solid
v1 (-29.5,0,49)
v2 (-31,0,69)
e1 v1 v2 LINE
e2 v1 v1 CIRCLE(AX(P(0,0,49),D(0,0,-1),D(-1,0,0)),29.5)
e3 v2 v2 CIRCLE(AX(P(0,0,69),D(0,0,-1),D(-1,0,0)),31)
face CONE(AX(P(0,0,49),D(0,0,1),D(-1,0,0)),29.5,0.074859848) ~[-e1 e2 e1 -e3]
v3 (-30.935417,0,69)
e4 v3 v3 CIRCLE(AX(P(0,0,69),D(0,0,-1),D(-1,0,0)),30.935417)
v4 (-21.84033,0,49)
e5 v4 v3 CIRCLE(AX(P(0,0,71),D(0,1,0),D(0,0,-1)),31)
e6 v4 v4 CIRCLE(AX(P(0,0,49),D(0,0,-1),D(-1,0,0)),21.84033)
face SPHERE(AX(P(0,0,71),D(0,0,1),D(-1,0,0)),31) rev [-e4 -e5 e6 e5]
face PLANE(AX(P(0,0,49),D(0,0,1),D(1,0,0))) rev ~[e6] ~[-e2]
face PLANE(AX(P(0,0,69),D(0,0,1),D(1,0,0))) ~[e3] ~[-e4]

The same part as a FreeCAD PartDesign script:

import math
import FreeCAD as App
import Part
import Sketcher

V = App.Vector


def add_polygon(sketch, points):
    """Adds a closed chain of lines whose ends are joined by coincident constraints."""
    first, n = sketch.GeometryCount, len(points)
    for a, b in zip(points, points[1:] + points[:1]):
        sketch.addGeometry(Part.LineSegment(App.Vector(*a, 0), App.Vector(*b, 0)), False)
    for i in range(n):
        sketch.addConstraint(Sketcher.Constraint("Coincident", first + i, 2, first + (i + 1) % n, 1))

doc = App.newDocument("Part")
body = doc.addObject("PartDesign::Body", "Body")

sketch1 = body.newObject("Sketcher::SketchObject", "Sketch")
sketch1.AttachmentSupport = (doc.getObject("XZ_Plane"), [""])
sketch1.MapMode = "FlatFace"
sketch1.addGeometry([
    Part.ArcOfCircle(Part.Circle(V(0, 71, 0), V(0, 0, 1), 31), math.radians(-90), math.radians(90)),
    Part.LineSegment(V(0, 102, 0), V(0, 40, 0)),
], False)
sketch1.addConstraint([
    Sketcher.Constraint("Coincident", 0, 1, 1, 2),
    Sketcher.Constraint("Coincident", 1, 1, 0, 2),
    Sketcher.Constraint("Vertical", 1),
    Sketcher.Constraint("PointOnObject", 0, 3, -2),
    Sketcher.Constraint("PointOnObject", 0, 1, -2),
    Sketcher.Constraint("Radius", 0, 31.0),
    Sketcher.Constraint("DistanceY", -1, 1, 0, 3, 71.0),
])
revolution = body.newObject("PartDesign::Revolution", "Revolution")
revolution.Profile = sketch1
revolution.ReferenceAxis = (sketch1, ["V_Axis"])
revolution.Angle = 360
body2 = doc.addObject("PartDesign::Body", "Body001")

sketch2 = body2.newObject("Sketcher::SketchObject", "Sketch001")
sketch2.AttachmentSupport = (doc.getObject("XZ_Plane001"), [""])
sketch2.MapMode = "FlatFace"
add_polygon(sketch2, [(0, 49), (30, 49), (31, 69), (0, 69)])
sketch2.addConstraint([
    Sketcher.Constraint("Horizontal", 0),
    Sketcher.Constraint("Horizontal", 2),
    Sketcher.Constraint("Vertical", 3),
    Sketcher.Constraint("PointOnObject", 2, 2, -2),
    Sketcher.Constraint("DistanceX", 2, 2, 2, 1, 31.0),
    Sketcher.Constraint("DistanceY", 3, 2, 3, 1, 20.0),
    Sketcher.Constraint("DistanceX", 0, 1, 0, 2, 29.5),
    Sketcher.Constraint("DistanceY", -1, 1, 0, 2, 49.0),
])
revolution2 = body2.newObject("PartDesign::Revolution", "Revolution001")
revolution2.Profile = sketch2
revolution2.ReferenceAxis = (sketch2, ["V_Axis"])
revolution2.Angle = 360
doc.recompute()

boolean = body2.newObject("PartDesign::Boolean", "Boolean")
boolean.Type = "Cut"
boolean.addObjects([body])
body3 = doc.addObject("PartDesign::Body", "Body002")
doc.recompute()

mirroring = doc.addObject("Part::Mirroring", "Mirroring")
mirroring.Source = body2
mirroring.Base = V(0, 0, 0)
mirroring.Normal = V(1, 0, 0)
body3.BaseFeature = mirroring
doc.recompute()
body2.Visibility = False
mirroring.Visibility = False

doc.recompute()
